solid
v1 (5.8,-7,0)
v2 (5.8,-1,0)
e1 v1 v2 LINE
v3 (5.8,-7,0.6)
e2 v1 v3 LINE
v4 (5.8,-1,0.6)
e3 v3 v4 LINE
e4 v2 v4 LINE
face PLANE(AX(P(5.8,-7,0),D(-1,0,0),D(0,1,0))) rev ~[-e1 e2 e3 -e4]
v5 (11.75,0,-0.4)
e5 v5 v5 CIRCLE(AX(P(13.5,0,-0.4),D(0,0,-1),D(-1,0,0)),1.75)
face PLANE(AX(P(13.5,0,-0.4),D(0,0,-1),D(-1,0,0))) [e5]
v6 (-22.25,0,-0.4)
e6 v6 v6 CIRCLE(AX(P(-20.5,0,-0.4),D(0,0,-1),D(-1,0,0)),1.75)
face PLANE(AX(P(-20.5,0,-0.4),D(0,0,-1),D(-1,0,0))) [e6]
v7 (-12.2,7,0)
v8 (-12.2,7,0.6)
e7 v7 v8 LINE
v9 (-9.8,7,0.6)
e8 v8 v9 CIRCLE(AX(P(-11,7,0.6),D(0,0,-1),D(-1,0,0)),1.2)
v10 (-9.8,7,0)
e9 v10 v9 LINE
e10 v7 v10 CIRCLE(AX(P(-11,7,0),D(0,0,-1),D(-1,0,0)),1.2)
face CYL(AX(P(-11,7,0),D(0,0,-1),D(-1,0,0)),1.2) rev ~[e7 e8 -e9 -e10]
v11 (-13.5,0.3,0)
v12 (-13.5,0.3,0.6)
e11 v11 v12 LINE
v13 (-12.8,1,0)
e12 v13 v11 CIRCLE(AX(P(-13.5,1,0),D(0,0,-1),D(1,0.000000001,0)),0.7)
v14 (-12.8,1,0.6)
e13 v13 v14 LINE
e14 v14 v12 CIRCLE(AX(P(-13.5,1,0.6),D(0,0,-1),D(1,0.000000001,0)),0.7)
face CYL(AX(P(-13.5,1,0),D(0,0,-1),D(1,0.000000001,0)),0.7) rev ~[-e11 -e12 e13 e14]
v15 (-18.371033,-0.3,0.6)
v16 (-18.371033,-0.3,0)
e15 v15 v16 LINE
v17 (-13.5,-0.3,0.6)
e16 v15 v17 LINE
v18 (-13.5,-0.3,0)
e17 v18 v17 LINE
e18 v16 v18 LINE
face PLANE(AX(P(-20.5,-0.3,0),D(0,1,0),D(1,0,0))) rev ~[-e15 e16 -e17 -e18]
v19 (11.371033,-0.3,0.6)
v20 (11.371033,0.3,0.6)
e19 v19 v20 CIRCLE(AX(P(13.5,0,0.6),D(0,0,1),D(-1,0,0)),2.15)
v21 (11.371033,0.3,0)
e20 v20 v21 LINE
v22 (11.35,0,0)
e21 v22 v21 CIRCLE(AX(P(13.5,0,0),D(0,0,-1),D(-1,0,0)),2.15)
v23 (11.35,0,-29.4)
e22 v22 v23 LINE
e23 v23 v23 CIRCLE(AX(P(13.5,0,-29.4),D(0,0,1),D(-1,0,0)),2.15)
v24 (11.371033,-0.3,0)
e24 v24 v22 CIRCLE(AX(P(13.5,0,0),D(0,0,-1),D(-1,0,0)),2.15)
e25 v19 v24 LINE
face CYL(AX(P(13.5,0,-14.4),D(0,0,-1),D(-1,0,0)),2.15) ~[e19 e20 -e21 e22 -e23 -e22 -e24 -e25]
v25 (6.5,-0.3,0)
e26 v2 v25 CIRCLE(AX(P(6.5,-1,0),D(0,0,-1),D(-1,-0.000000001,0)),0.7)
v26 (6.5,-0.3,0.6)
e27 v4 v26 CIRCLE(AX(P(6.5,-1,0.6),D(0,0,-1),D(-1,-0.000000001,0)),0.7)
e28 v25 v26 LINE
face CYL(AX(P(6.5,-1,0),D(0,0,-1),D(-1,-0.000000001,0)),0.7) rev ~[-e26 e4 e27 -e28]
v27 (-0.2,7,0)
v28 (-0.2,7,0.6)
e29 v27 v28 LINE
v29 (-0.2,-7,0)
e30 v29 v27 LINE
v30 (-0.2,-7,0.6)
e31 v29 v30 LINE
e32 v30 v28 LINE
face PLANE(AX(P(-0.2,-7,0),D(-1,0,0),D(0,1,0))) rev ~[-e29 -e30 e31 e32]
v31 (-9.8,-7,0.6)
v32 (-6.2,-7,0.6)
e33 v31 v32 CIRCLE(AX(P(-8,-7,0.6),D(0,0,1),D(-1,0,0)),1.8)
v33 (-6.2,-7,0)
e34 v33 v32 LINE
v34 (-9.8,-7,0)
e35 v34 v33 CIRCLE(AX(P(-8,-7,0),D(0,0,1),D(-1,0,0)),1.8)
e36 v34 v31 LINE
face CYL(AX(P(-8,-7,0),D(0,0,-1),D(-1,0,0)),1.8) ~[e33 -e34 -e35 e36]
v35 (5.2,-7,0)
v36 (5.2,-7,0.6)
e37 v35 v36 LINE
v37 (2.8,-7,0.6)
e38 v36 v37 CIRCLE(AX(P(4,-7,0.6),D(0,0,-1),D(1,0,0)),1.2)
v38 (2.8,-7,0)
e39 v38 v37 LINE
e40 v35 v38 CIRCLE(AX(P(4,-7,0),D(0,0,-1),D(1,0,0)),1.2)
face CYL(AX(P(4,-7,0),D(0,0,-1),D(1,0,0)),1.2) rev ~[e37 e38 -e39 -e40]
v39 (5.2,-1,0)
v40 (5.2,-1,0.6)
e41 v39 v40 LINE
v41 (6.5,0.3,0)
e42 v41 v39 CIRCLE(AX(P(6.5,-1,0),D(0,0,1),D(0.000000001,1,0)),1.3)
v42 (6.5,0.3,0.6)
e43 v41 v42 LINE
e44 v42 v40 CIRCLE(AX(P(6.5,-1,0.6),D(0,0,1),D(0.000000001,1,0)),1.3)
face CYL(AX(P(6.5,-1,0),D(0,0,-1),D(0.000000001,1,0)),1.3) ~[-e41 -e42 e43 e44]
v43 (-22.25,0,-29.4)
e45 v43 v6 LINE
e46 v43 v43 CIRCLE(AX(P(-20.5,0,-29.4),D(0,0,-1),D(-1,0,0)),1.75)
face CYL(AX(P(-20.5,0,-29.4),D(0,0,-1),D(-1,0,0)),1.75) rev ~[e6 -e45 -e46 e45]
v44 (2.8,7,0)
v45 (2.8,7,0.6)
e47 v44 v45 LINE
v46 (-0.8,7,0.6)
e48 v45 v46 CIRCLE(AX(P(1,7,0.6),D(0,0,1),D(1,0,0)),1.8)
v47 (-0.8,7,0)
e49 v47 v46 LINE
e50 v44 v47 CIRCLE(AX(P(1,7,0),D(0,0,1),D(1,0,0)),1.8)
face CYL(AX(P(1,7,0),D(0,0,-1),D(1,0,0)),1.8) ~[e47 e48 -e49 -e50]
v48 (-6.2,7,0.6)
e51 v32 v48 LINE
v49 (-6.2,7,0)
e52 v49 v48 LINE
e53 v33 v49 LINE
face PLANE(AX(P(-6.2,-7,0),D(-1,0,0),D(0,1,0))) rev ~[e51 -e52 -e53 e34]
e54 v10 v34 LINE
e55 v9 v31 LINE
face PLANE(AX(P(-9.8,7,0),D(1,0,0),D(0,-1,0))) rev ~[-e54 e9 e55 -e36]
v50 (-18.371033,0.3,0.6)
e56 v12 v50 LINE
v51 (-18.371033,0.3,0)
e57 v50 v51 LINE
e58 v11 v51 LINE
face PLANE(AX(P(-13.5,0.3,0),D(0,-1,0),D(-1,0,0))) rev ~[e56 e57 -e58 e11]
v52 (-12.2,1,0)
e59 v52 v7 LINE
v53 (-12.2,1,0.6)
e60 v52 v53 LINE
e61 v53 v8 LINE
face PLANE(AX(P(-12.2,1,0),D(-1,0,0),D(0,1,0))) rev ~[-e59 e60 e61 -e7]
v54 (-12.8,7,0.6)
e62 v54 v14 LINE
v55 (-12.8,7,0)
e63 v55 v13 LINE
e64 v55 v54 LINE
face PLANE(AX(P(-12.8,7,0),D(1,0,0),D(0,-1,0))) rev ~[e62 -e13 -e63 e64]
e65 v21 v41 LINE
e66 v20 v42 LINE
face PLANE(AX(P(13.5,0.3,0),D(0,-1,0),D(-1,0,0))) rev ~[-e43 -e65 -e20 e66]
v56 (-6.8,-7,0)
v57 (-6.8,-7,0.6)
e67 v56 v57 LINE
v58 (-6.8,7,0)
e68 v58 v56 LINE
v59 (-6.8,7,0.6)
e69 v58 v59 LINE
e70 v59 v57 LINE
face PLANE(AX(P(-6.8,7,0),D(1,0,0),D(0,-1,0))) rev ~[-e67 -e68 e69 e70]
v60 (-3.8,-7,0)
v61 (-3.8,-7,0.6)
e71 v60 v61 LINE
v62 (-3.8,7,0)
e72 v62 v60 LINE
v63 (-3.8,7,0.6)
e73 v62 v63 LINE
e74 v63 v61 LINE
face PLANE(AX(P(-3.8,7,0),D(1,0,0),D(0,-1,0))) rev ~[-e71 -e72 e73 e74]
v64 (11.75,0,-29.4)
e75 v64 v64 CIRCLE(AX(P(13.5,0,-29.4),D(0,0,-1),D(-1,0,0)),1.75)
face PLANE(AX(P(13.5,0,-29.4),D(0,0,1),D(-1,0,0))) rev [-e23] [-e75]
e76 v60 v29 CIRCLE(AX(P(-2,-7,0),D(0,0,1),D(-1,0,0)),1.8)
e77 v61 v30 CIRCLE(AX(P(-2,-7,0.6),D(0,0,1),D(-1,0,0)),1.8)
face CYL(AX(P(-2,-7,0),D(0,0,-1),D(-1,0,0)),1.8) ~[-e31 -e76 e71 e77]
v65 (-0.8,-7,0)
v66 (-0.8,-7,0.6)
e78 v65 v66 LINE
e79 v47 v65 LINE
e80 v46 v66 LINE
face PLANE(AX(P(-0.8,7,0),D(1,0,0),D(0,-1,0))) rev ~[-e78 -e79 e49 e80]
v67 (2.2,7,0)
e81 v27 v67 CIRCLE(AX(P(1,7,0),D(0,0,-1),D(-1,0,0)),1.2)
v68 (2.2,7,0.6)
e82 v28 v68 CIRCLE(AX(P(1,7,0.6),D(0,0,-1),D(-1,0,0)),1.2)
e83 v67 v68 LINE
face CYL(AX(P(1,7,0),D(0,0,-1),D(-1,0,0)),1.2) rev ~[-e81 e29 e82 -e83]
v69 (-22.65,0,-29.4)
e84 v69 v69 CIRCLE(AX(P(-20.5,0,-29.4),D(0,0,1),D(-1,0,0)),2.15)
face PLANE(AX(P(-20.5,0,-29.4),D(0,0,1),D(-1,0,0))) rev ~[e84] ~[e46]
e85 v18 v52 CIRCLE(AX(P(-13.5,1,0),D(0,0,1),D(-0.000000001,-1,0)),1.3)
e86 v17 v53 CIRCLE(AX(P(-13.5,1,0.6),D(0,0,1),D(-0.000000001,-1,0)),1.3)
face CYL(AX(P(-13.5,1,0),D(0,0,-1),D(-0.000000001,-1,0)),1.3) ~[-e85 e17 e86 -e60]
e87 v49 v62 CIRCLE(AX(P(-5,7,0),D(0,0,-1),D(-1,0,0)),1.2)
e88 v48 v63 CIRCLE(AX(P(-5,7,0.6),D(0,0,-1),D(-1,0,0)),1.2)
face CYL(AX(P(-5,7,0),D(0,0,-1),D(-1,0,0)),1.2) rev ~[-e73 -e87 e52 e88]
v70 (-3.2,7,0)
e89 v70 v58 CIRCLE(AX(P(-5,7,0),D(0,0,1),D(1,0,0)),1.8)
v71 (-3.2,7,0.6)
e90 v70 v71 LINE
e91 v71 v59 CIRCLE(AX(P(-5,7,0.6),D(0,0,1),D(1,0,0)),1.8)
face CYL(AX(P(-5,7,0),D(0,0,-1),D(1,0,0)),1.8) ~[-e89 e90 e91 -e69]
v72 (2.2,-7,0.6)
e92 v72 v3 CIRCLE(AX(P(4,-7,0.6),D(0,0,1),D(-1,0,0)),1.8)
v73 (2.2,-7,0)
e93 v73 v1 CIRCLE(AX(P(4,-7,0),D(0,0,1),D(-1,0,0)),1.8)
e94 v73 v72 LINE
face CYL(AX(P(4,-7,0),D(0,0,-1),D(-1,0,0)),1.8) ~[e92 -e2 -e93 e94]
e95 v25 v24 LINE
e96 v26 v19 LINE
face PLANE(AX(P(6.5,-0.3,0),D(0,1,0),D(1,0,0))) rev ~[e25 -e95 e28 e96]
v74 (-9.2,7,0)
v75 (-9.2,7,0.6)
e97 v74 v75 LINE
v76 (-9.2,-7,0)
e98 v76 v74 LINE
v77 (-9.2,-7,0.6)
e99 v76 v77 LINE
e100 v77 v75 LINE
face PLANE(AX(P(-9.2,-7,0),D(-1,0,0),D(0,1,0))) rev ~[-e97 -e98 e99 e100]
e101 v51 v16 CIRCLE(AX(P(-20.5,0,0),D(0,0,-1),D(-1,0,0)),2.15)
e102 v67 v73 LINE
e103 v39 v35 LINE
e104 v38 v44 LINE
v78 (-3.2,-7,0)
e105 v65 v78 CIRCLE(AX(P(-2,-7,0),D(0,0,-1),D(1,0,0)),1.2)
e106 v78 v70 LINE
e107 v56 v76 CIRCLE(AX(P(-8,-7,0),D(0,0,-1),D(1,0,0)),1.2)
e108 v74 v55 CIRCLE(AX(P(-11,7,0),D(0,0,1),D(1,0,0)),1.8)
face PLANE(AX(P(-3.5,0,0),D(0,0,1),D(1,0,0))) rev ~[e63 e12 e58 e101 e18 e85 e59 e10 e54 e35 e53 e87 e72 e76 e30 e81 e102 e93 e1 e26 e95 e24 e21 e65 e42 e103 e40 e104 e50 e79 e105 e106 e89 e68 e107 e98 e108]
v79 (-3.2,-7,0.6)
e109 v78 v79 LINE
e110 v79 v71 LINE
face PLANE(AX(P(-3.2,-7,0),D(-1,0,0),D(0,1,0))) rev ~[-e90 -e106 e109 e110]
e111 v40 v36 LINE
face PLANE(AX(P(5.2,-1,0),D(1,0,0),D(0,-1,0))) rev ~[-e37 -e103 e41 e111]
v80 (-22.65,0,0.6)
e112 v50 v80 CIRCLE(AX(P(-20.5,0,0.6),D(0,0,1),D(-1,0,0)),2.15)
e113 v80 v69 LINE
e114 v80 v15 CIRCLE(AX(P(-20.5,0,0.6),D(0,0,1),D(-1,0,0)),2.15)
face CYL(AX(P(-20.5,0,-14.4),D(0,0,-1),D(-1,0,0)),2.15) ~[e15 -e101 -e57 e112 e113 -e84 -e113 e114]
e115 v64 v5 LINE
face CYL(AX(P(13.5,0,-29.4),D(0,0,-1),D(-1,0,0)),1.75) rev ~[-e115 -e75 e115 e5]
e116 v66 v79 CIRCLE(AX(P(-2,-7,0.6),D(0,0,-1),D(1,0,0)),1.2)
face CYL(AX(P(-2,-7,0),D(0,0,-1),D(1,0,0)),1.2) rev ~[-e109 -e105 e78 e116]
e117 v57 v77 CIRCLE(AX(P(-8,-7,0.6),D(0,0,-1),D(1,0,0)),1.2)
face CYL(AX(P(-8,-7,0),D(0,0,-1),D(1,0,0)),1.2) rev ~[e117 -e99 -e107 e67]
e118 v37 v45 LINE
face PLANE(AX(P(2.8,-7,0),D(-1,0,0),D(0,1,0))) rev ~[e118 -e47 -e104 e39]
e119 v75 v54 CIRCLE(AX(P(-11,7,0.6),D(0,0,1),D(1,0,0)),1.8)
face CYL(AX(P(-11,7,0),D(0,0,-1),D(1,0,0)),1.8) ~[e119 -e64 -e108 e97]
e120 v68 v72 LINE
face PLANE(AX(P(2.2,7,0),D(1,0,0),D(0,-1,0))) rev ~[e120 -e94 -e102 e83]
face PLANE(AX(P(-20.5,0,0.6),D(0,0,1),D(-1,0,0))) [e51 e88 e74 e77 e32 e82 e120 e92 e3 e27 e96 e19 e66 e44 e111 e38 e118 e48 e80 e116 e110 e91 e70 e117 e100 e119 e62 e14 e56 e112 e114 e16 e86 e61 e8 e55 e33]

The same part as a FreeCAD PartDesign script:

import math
import FreeCAD as App
import Part
import Sketcher

V = App.Vector
Q = App.Units.Quantity


def add_polygon(sketch, points):
    """Adds a closed chain of lines whose ends are joined by coincident constraints."""
    first, n = sketch.GeometryCount, len(points)
    for a, b in zip(points, points[1:] + points[:1]):
        sketch.addGeometry(Part.LineSegment(App.Vector(*a, 0), App.Vector(*b, 0)), False)
    for i in range(n):
        sketch.addConstraint(Sketcher.Constraint("Coincident", first + i, 2, first + (i + 1) % n, 1))

doc = App.newDocument("Part")
params = doc.addObject("Spreadsheet::Sheet", "Params")
for row, (alias, value) in enumerate([
    ("sketch1_radius", "1.3 mm"),
    ("sketch1_radius2", "1.2 mm"),
    ("sketch1_radius3", "1.8 mm"),
    ("sketch1_width", "7 mm"),
    ("sketch1_height", "6 mm"),
    ("pad1_length", "0.6 mm"),
    ("sketch2_height", "30 mm"),
    ("sketch2_width", "2.15 mm"),
    ("revolution_angle", "360 deg"),
    ("sketch3_height", "30 mm"),
    ("sketch3_width", "2.15 mm"),
    ("revolution2_angle", "360 deg"),
    ("sketch4_diameter", "3.5 mm"),
    ("pocket1_length", "29 mm"),
], start=1):
    params.set(f"A{row}", alias)
    params.set(f"B{row}", "=" + value)
    params.setAlias(f"B{row}", alias)

body = doc.addObject("PartDesign::Body", "Body")

# Sketch on XY plane
sketch1 = body.newObject("Sketcher::SketchObject", "Sketch")
sketch1.AttachmentSupport = (doc.getObject("XY_Plane"), [""])
sketch1.MapMode = "FlatFace"
sketch1.addGeometry([
    Part.LineSegment(V(-20.5, -0.3, 0), V(-13.5, -0.3, 0)),  # 0
    Part.ArcOfCircle(Part.Circle(V(-13.5, 1, 0), V(0, 0, 1), 1.3), math.radians(-90), math.radians(0)),  # 1
    Part.LineSegment(V(-12.2, 1, 0), V(-12.2, 7, 0)),  # 2
    Part.ArcOfCircle(Part.Circle(V(-11, 7, 0), V(0, 0, 1), 1.2), math.radians(0), math.radians(180)),  # 3
    Part.LineSegment(V(-9.8, 7, 0), V(-9.8, -7, 0)),  # 4
    Part.ArcOfCircle(Part.Circle(V(-8, -7, 0), V(0, 0, 1), 1.8), math.radians(180), math.radians(360)),  # 5
    Part.LineSegment(V(-6.2, -7, 0), V(-6.2, 7, 0)),  # 6
    Part.ArcOfCircle(Part.Circle(V(-5, 7, 0), V(0, 0, 1), 1.2), math.radians(0), math.radians(180)),  # 7
    Part.LineSegment(V(-3.8, 7, 0), V(-3.8, -7, 0)),  # 8
    Part.ArcOfCircle(Part.Circle(V(-2, -7, 0), V(0, 0, 1), 1.8), math.radians(180), math.radians(360)),  # 9
    Part.LineSegment(V(-0.2, -7, 0), V(-0.2, 7, 0)),  # 10
    Part.ArcOfCircle(Part.Circle(V(1, 7, 0), V(0, 0, 1), 1.2), math.radians(0), math.radians(180)),  # 11
    Part.LineSegment(V(2.2, 7, 0), V(2.2, -7, 0)),  # 12
    Part.ArcOfCircle(Part.Circle(V(4, -7, 0), V(0, 0, 1), 1.8), math.radians(180), math.radians(360)),  # 13
    Part.LineSegment(V(5.8, -7, 0), V(5.8, -1, 0)),  # 14
    Part.ArcOfCircle(Part.Circle(V(6.5, -1, 0), V(0, 0, 1), 0.7), math.radians(90), math.radians(180)),  # 15
    Part.LineSegment(V(6.5, -0.3, 0), V(13.5, -0.3, 0)),  # 16
    Part.ArcOfCircle(Part.Circle(V(13.5, 0, 0), V(0, 0, 1), 0.3), math.radians(-90), math.radians(90)),  # 17
    Part.LineSegment(V(13.5, 0.3, 0), V(6.5, 0.3, 0)),  # 18
    Part.ArcOfCircle(Part.Circle(V(6.5, -1, 0), V(0, 0, 1), 1.3), math.radians(90), math.radians(180)),  # 19
    Part.LineSegment(V(5.2, -1, 0), V(5.2, -7, 0)),  # 20
    Part.ArcOfCircle(Part.Circle(V(4, -7, 0), V(0, 0, 1), 1.2), math.radians(180), math.radians(360)),  # 21
    Part.LineSegment(V(2.8, -7, 0), V(2.8, 7, 0)),  # 22
    Part.ArcOfCircle(Part.Circle(V(1, 7, 0), V(0, 0, 1), 1.8), math.radians(0), math.radians(180)),  # 23
    Part.LineSegment(V(-0.8, 7, 0), V(-0.8, -7, 0)),  # 24
    Part.ArcOfCircle(Part.Circle(V(-2, -7, 0), V(0, 0, 1), 1.2), math.radians(180), math.radians(360)),  # 25
    Part.LineSegment(V(-3.2, -7, 0), V(-3.2, 7, 0)),  # 26
    Part.ArcOfCircle(Part.Circle(V(-5, 7, 0), V(0, 0, 1), 1.8), math.radians(0), math.radians(180)),  # 27
    Part.LineSegment(V(-6.8, 7, 0), V(-6.8, -7, 0)),  # 28
    Part.ArcOfCircle(Part.Circle(V(-8, -7, 0), V(0, 0, 1), 1.2), math.radians(180), math.radians(360)),  # 29
    Part.LineSegment(V(-9.2, -7, 0), V(-9.2, 7, 0)),  # 30
    Part.ArcOfCircle(Part.Circle(V(-11, 7, 0), V(0, 0, 1), 1.8), math.radians(0), math.radians(180)),  # 31
    Part.LineSegment(V(-12.8, 7, 0), V(-12.8, 1, 0)),  # 32
    Part.ArcOfCircle(Part.Circle(V(-13.5, 1, 0), V(0, 0, 1), 0.7), math.radians(-90), math.radians(0)),  # 33
    Part.LineSegment(V(-13.5, 0.3, 0), V(-20.5, 0.3, 0)),  # 34
    Part.ArcOfCircle(Part.Circle(V(-20.5, 0, 0), V(0, 0, 1), 0.3), math.radians(90), math.radians(270)),  # 35
], False)
sketch1.addConstraint([
    Sketcher.Constraint("Tangent", 0, 2, 1, 1),
    Sketcher.Constraint("Tangent", 1, 2, 2, 1),
    Sketcher.Constraint("Tangent", 2, 2, 3, 2),
    Sketcher.Constraint("Tangent", 3, 1, 4, 1),
    Sketcher.Constraint("Tangent", 4, 2, 5, 1),
    Sketcher.Constraint("Tangent", 5, 2, 6, 1),
    Sketcher.Constraint("Tangent", 6, 2, 7, 2),
    Sketcher.Constraint("Tangent", 7, 1, 8, 1),
    Sketcher.Constraint("Tangent", 8, 2, 9, 1),
    Sketcher.Constraint("Tangent", 9, 2, 10, 1),
    Sketcher.Constraint("Tangent", 10, 2, 11, 2),
    Sketcher.Constraint("Tangent", 11, 1, 12, 1),
    Sketcher.Constraint("Tangent", 12, 2, 13, 1),
    Sketcher.Constraint("Tangent", 13, 2, 14, 1),
    Sketcher.Constraint("Tangent", 14, 2, 15, 2),
    Sketcher.Constraint("Tangent", 15, 1, 16, 1),
    Sketcher.Constraint("Tangent", 16, 2, 17, 1),
    Sketcher.Constraint("Tangent", 17, 2, 18, 1),
    Sketcher.Constraint("Tangent", 18, 2, 19, 1),
    Sketcher.Constraint("Tangent", 19, 2, 20, 1),
    Sketcher.Constraint("Tangent", 20, 2, 21, 2),
    Sketcher.Constraint("Tangent", 21, 1, 22, 1),
    Sketcher.Constraint("Tangent", 22, 2, 23, 1),
    Sketcher.Constraint("Tangent", 23, 2, 24, 1),
    Sketcher.Constraint("Tangent", 24, 2, 25, 2),
    Sketcher.Constraint("Tangent", 25, 1, 26, 1),
    Sketcher.Constraint("Tangent", 26, 2, 27, 1),
    Sketcher.Constraint("Tangent", 27, 2, 28, 1),
    Sketcher.Constraint("Tangent", 28, 2, 29, 2),
    Sketcher.Constraint("Tangent", 29, 1, 30, 1),
    Sketcher.Constraint("Tangent", 30, 2, 31, 1),
    Sketcher.Constraint("Tangent", 31, 2, 32, 1),
    Sketcher.Constraint("Tangent", 32, 2, 33, 2),
    Sketcher.Constraint("Tangent", 33, 1, 34, 1),
    Sketcher.Constraint("Tangent", 34, 2, 35, 1),
    Sketcher.Constraint("Tangent", 35, 2, 0, 1),
    Sketcher.Constraint("Horizontal", 0),
    Sketcher.Constraint("Vertical", 2),
    Sketcher.Constraint("Vertical", 4),
    Sketcher.Constraint("Vertical", 6),
    Sketcher.Constraint("Vertical", 8),
    Sketcher.Constraint("Vertical", 10),
    Sketcher.Constraint("Vertical", 12),
    Sketcher.Constraint("Vertical", 14),
    Sketcher.Constraint("Horizontal", 16),
    Sketcher.Constraint("Horizontal", 18),
    Sketcher.Constraint("Vertical", 20),
    Sketcher.Constraint("Vertical", 22),
    Sketcher.Constraint("Vertical", 24),
    Sketcher.Constraint("Vertical", 26),
    Sketcher.Constraint("Vertical", 28),
    Sketcher.Constraint("Vertical", 30),
    Sketcher.Constraint("Vertical", 32),
    Sketcher.Constraint("Horizontal", 34),
    Sketcher.Constraint("Coincident", 19, 3, 15, 3),
    Sketcher.Constraint("Coincident", 21, 3, 13, 3),
    Sketcher.Constraint("Coincident", 23, 3, 11, 3),
    Sketcher.Constraint("Coincident", 25, 3, 9, 3),
    Sketcher.Constraint("Coincident", 27, 3, 7, 3),
    Sketcher.Constraint("Coincident", 29, 3, 5, 3),
    Sketcher.Constraint("Coincident", 31, 3, 3, 3),
    Sketcher.Constraint("Coincident", 33, 3, 1, 3),
    Sketcher.Constraint("Equal", 3, 7),
    Sketcher.Constraint("Equal", 5, 9),
    Sketcher.Constraint("Equal", 7, 11),
    Sketcher.Constraint("Equal", 9, 13),
    Sketcher.Constraint("Equal", 1, 19),
    Sketcher.Constraint("Equal", 11, 21),
    Sketcher.Constraint("Symmetric", 0, 2, 17, 2, -1, 1),
    Sketcher.Constraint("PointOnObject", 17, 3, -1),
    Sketcher.Constraint("Horizontal", 3, 3, 7, 3),
    Sketcher.Constraint("Horizontal", 5, 3, 9, 3),
    Sketcher.Constraint("Horizontal", 7, 3, 11, 3),
    Sketcher.Constraint("Horizontal", 9, 3, 13, 3),
    Sketcher.Constraint("Equal", 0, 16),
    Sketcher.Constraint("Equal", 2, 14),
    Sketcher.Constraint("Radius", 1, Q("1.3 mm")),
    Sketcher.Constraint("Radius", 3, Q("1.2 mm")),
    Sketcher.Constraint("Radius", 5, Q("1.8 mm")),
    Sketcher.Constraint("DistanceX", 0, 1, 0, 2, Q("7 mm")),
    Sketcher.Constraint("DistanceY", 2, 1, 2, 2, Q("6 mm")),
])
sketch1.setExpression("Constraints[76]", "Params.sketch1_radius")
sketch1.setExpression("Constraints[77]", "Params.sketch1_radius2")
sketch1.setExpression("Constraints[78]", "Params.sketch1_radius3")
sketch1.setExpression("Constraints[79]", "Params.sketch1_width")
sketch1.setExpression("Constraints[80]", "Params.sketch1_height")
pad1 = body.newObject("PartDesign::Pad", "Pad")
pad1.Profile = sketch1
pad1.setExpression("Length", "Params.pad1_length")

# Sketch on XZ plane
sketch2 = body.newObject("Sketcher::SketchObject", "Sketch001")
sketch2.AttachmentSupport = (doc.getObject("XZ_Plane"), [""])
sketch2.MapMode = "FlatFace"
add_polygon(sketch2, [(-22.6, -29.4), (-22.6, 0.6), (-20.5, 0.6), (-20.5, -29.4)])  # lines 0-3
sketch2.addGeometry(Part.LineSegment(V(-20.5, -29.4, 0), V(-20.5, 0.6, 0)), True)  # axis
sketch2.addConstraint([
    Sketcher.Constraint("Vertical", 0),
    Sketcher.Constraint("Horizontal", 1),
    Sketcher.Constraint("Vertical", 2),
    Sketcher.Constraint("Horizontal", 3),
    Sketcher.Constraint("Vertical", 4),
    Sketcher.Constraint("Coincident", 4, 1, 2, 2),
    Sketcher.Constraint("Horizontal", 0, 2, 4, 2),
    Sketcher.Constraint("DistanceY", 0, 1, 0, 2, Q("30 mm")),
    Sketcher.Constraint("DistanceX", 1, 1, 1, 2, Q("2.15 mm")),
    Sketcher.Constraint("DistanceY", -1, 1, 0, 2, Q("0.6 mm")),
    Sketcher.Constraint("DistanceX", 1, 2, -1, 1, Q("20.5 mm")),
])
sketch2.setExpression("Constraints[11]", "Params.sketch2_height")
sketch2.setExpression("Constraints[12]", "Params.sketch2_width")
revolution = body.newObject("PartDesign::Revolution", "Revolution")
revolution.Profile = sketch2
revolution.ReferenceAxis = (sketch2, ["Axis0"])
revolution.setExpression("Angle", "Params.revolution_angle")

# Sketch on XZ plane
sketch3 = body.newObject("Sketcher::SketchObject", "Sketch002")
sketch3.AttachmentSupport = (doc.getObject("XZ_Plane"), [""])
sketch3.MapMode = "FlatFace"
add_polygon(sketch3, [(13.5, -29.4), (13.5, 0.6), (15.7, 0.6), (15.7, -29.4)])  # lines 0-3
sketch3.addGeometry(Part.LineSegment(V(13.5, -29.4, 0), V(13.5, 0.6, 0)), True)  # axis
sketch3.addConstraint([
    Sketcher.Constraint("Vertical", 0),
    Sketcher.Constraint("Horizontal", 1),
    Sketcher.Constraint("Vertical", 2),
    Sketcher.Constraint("Horizontal", 3),
    Sketcher.Constraint("Vertical", 4),
    Sketcher.Constraint("Coincident", 4, 1, 3, 2),
    Sketcher.Constraint("Horizontal", 1, 2, 4, 2),
    Sketcher.Constraint("DistanceY", 0, 1, 0, 2, Q("30 mm")),
    Sketcher.Constraint("DistanceX", 1, 1, 1, 2, Q("2.15 mm")),
    Sketcher.Constraint("DistanceX", -1, 1, 0, 2, Q("13.5 mm")),
    Sketcher.Constraint("DistanceY", -1, 1, 0, 2, Q("0.6 mm")),
])
sketch3.setExpression("Constraints[11]", "Params.sketch3_height")
sketch3.setExpression("Constraints[12]", "Params.sketch3_width")
revolution2 = body.newObject("PartDesign::Revolution", "Revolution001")
revolution2.Profile = sketch3
revolution2.ReferenceAxis = (sketch3, ["Axis0"])
revolution2.setExpression("Angle", "Params.revolution2_angle")

# Sketch on XY plane
sketch4 = body.newObject("Sketcher::SketchObject", "Sketch003")
sketch4.AttachmentSupport = (doc.getObject("XY_Plane"), [""])
sketch4.MapMode = "FlatFace"
sketch4.AttachmentOffset = App.Placement(V(0, 0, -29.4), App.Rotation())
sketch4.addGeometry([
    Part.Circle(V(-20.5, 0, 0), V(0, 0, 1), 1.8),
    Part.Circle(V(13.5, 0, 0), V(0, 0, 1), 1.8),
], False)
sketch4.addConstraint([
    Sketcher.Constraint("Equal", 0, 1),
    Sketcher.Constraint("PointOnObject", 0, 3, -1),
    Sketcher.Constraint("PointOnObject", 1, 3, -1),
    Sketcher.Constraint("Diameter", 0, Q("3.5 mm")),
    Sketcher.Constraint("DistanceX", 0, 3, 1, 3, Q("34 mm")),
    Sketcher.Constraint("DistanceX", 0, 3, -1, 1, Q("20.5 mm")),
])
sketch4.setExpression("Constraints[3]", "Params.sketch4_diameter")
pocket1 = body.newObject("PartDesign::Pocket", "Pocket")
pocket1.Profile = sketch4
pocket1.setExpression("Length", "Params.pocket1_length")
pocket1.Reversed = True

doc.recompute()
